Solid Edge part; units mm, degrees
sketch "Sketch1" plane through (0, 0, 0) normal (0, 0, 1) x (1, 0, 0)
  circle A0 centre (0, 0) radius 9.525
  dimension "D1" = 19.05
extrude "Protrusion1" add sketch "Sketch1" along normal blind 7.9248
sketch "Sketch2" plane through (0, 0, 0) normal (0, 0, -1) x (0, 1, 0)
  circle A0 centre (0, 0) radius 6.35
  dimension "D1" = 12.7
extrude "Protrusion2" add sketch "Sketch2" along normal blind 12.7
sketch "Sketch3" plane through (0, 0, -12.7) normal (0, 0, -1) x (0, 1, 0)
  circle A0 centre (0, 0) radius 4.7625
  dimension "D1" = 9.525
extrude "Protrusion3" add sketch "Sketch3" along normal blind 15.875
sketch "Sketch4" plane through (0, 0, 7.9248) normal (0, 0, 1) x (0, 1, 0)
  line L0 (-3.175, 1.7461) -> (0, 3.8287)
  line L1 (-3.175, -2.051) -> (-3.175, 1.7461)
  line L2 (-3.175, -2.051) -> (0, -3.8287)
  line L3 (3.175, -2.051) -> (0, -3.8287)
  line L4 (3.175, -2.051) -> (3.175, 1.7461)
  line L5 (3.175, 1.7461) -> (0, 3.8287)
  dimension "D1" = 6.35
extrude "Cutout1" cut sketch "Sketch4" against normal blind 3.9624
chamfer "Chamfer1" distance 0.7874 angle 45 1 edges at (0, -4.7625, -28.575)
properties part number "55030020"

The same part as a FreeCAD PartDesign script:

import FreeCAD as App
import Part
import Sketcher
Q = App.Units.Quantity


def edges_at(feature, points):
    """Names of the edges that pass closest to the given points."""
    edges = feature.Shape.Edges
    near = lambda p: min(range(len(edges)), key=lambda i: edges[i].distToShape(Part.Vertex(*p))[0])
    return sorted({f"Edge{near(p) + 1}" for p in points})

doc = App.newDocument("Part")
body = doc.addObject("PartDesign::Body", "Body")

sketch1 = doc.addObject("Sketcher::SketchObject", "Sketch")
body.addObject(sketch1)
sketch1.AttachmentSupport = (doc.XY_Plane, [""])
sketch1.MapMode = "FlatFace"
sketch1.addGeometry(Part.Circle(App.Vector(0, 0, 0), App.Vector(0, 0, 1), 10), False)
sketch1.addConstraint([
    Sketcher.Constraint("Coincident", 0, 3, -1, 1),
    Sketcher.Constraint("Diameter", 0, Q("0.75 in")),
])
pad1 = doc.addObject("PartDesign::Pad", "Pad")
body.addObject(pad1)
pad1.Profile = sketch1
pad1.Length = Q("0.312 in")

sketch2 = doc.addObject("Sketcher::SketchObject", "Sketch001")
body.addObject(sketch2)
sketch2.AttachmentSupport = (doc.XY_Plane, [""])
sketch2.MapMode = "FlatFace"
sketch2.addGeometry(Part.Circle(App.Vector(0, 0, 0), App.Vector(0, 0, 1), 6), False)
sketch2.addConstraint([
    Sketcher.Constraint("Coincident", 0, 3, -1, 1),
    Sketcher.Constraint("Diameter", 0, Q("0.5 in")),
])
pad2 = doc.addObject("PartDesign::Pad", "Pad001")
body.addObject(pad2)
pad2.Profile = sketch2
pad2.Length = Q("0.5 in")
pad2.Reversed = True

sketch3 = doc.addObject("Sketcher::SketchObject", "Sketch002")
body.addObject(sketch3)
sketch3.AttachmentSupport = (doc.XY_Plane, [""])
sketch3.MapMode = "FlatFace"
sketch3.AttachmentOffset = App.Placement(App.Vector(0, 0, -0.5 * 25.4), App.Rotation())
sketch3.addGeometry(Part.Circle(App.Vector(0, 0, 0), App.Vector(0, 0, 1), 4.8), False)
sketch3.addConstraint([
    Sketcher.Constraint("Coincident", 0, 3, -1, 1),
    Sketcher.Constraint("Diameter", 0, Q("0.375 in")),
])
pad3 = doc.addObject("PartDesign::Pad", "Pad002")
body.addObject(pad3)
pad3.Profile = sketch3
pad3.Length = Q("0.625 in")
pad3.Reversed = True

sketch4 = doc.addObject("Sketcher::SketchObject", "Sketch003")
body.addObject(sketch4)
sketch4.AttachmentSupport = (doc.XY_Plane, [""])
sketch4.MapMode = "FlatFace"
sketch4.AttachmentOffset = App.Placement(App.Vector(0, 0, 0.312 * 25.4), App.Rotation())
sketch4.addGeometry([
    Part.LineSegment(App.Vector(-3.8, 0, 0), App.Vector(-1.7, -3.2, 0)),
    Part.LineSegment(App.Vector(-1.7, -3.2, 0), App.Vector(2.1, -3.2, 0)),
    Part.LineSegment(App.Vector(2.1, -3.2, 0), App.Vector(3.8, 0, 0)),
    Part.LineSegment(App.Vector(3.8, 0, 0), App.Vector(2.1, 3.2, 0)),
    Part.LineSegment(App.Vector(2.1, 3.2, 0), App.Vector(-1.7, 3.2, 0)),
    Part.LineSegment(App.Vector(-1.7, 3.2, 0), App.Vector(-3.8, 0, 0)),
], False)
sketch4.addConstraint([
    Sketcher.Constraint("Coincident", 0, 2, 1, 1),
    Sketcher.Constraint("Coincident", 1, 2, 2, 1),
    Sketcher.Constraint("Coincident", 2, 2, 3, 1),
    Sketcher.Constraint("Coincident", 3, 2, 4, 1),
    Sketcher.Constraint("Coincident", 4, 2, 5, 1),
    Sketcher.Constraint("Coincident", 5, 2, 0, 1),
    Sketcher.Constraint("Horizontal", 1),
    Sketcher.Constraint("Horizontal", 4),
    Sketcher.Constraint("Symmetric", 2, 2, 5, 2, -1, 1),
    Sketcher.Constraint("Symmetric", 1, 2, 3, 2, -1),
    Sketcher.Constraint("PointOnObject", 2, 2, -1),
    Sketcher.Constraint("Vertical", 0, 2, 4, 2),
    Sketcher.Constraint("DistanceX", 1, 2, 2, 2, Q("0.07 in")),
    Sketcher.Constraint("DistanceY", 1, 2, 3, 2, Q("0.25 in")),
    Sketcher.Constraint("DistanceX", 1, 1, 1, 2, Q("0.1495 in")),
    Sketcher.Constraint("DistanceX", 5, 2, 0, 2, Q("0.082 in")),
])
pocket1 = doc.addObject("PartDesign::Pocket", "Pocket")
body.addObject(pocket1)
pocket1.Profile = sketch4
pocket1.Length = Q("0.156 in")
doc.recompute()

chamfer = doc.addObject("PartDesign::Chamfer", "Chamfer")
body.addObject(chamfer)
chamfer.Base = (pocket1, edges_at(pocket1, [(0, -4.763, -28.575)]))
chamfer.Size = Q("0.031 in")

doc.recompute()
